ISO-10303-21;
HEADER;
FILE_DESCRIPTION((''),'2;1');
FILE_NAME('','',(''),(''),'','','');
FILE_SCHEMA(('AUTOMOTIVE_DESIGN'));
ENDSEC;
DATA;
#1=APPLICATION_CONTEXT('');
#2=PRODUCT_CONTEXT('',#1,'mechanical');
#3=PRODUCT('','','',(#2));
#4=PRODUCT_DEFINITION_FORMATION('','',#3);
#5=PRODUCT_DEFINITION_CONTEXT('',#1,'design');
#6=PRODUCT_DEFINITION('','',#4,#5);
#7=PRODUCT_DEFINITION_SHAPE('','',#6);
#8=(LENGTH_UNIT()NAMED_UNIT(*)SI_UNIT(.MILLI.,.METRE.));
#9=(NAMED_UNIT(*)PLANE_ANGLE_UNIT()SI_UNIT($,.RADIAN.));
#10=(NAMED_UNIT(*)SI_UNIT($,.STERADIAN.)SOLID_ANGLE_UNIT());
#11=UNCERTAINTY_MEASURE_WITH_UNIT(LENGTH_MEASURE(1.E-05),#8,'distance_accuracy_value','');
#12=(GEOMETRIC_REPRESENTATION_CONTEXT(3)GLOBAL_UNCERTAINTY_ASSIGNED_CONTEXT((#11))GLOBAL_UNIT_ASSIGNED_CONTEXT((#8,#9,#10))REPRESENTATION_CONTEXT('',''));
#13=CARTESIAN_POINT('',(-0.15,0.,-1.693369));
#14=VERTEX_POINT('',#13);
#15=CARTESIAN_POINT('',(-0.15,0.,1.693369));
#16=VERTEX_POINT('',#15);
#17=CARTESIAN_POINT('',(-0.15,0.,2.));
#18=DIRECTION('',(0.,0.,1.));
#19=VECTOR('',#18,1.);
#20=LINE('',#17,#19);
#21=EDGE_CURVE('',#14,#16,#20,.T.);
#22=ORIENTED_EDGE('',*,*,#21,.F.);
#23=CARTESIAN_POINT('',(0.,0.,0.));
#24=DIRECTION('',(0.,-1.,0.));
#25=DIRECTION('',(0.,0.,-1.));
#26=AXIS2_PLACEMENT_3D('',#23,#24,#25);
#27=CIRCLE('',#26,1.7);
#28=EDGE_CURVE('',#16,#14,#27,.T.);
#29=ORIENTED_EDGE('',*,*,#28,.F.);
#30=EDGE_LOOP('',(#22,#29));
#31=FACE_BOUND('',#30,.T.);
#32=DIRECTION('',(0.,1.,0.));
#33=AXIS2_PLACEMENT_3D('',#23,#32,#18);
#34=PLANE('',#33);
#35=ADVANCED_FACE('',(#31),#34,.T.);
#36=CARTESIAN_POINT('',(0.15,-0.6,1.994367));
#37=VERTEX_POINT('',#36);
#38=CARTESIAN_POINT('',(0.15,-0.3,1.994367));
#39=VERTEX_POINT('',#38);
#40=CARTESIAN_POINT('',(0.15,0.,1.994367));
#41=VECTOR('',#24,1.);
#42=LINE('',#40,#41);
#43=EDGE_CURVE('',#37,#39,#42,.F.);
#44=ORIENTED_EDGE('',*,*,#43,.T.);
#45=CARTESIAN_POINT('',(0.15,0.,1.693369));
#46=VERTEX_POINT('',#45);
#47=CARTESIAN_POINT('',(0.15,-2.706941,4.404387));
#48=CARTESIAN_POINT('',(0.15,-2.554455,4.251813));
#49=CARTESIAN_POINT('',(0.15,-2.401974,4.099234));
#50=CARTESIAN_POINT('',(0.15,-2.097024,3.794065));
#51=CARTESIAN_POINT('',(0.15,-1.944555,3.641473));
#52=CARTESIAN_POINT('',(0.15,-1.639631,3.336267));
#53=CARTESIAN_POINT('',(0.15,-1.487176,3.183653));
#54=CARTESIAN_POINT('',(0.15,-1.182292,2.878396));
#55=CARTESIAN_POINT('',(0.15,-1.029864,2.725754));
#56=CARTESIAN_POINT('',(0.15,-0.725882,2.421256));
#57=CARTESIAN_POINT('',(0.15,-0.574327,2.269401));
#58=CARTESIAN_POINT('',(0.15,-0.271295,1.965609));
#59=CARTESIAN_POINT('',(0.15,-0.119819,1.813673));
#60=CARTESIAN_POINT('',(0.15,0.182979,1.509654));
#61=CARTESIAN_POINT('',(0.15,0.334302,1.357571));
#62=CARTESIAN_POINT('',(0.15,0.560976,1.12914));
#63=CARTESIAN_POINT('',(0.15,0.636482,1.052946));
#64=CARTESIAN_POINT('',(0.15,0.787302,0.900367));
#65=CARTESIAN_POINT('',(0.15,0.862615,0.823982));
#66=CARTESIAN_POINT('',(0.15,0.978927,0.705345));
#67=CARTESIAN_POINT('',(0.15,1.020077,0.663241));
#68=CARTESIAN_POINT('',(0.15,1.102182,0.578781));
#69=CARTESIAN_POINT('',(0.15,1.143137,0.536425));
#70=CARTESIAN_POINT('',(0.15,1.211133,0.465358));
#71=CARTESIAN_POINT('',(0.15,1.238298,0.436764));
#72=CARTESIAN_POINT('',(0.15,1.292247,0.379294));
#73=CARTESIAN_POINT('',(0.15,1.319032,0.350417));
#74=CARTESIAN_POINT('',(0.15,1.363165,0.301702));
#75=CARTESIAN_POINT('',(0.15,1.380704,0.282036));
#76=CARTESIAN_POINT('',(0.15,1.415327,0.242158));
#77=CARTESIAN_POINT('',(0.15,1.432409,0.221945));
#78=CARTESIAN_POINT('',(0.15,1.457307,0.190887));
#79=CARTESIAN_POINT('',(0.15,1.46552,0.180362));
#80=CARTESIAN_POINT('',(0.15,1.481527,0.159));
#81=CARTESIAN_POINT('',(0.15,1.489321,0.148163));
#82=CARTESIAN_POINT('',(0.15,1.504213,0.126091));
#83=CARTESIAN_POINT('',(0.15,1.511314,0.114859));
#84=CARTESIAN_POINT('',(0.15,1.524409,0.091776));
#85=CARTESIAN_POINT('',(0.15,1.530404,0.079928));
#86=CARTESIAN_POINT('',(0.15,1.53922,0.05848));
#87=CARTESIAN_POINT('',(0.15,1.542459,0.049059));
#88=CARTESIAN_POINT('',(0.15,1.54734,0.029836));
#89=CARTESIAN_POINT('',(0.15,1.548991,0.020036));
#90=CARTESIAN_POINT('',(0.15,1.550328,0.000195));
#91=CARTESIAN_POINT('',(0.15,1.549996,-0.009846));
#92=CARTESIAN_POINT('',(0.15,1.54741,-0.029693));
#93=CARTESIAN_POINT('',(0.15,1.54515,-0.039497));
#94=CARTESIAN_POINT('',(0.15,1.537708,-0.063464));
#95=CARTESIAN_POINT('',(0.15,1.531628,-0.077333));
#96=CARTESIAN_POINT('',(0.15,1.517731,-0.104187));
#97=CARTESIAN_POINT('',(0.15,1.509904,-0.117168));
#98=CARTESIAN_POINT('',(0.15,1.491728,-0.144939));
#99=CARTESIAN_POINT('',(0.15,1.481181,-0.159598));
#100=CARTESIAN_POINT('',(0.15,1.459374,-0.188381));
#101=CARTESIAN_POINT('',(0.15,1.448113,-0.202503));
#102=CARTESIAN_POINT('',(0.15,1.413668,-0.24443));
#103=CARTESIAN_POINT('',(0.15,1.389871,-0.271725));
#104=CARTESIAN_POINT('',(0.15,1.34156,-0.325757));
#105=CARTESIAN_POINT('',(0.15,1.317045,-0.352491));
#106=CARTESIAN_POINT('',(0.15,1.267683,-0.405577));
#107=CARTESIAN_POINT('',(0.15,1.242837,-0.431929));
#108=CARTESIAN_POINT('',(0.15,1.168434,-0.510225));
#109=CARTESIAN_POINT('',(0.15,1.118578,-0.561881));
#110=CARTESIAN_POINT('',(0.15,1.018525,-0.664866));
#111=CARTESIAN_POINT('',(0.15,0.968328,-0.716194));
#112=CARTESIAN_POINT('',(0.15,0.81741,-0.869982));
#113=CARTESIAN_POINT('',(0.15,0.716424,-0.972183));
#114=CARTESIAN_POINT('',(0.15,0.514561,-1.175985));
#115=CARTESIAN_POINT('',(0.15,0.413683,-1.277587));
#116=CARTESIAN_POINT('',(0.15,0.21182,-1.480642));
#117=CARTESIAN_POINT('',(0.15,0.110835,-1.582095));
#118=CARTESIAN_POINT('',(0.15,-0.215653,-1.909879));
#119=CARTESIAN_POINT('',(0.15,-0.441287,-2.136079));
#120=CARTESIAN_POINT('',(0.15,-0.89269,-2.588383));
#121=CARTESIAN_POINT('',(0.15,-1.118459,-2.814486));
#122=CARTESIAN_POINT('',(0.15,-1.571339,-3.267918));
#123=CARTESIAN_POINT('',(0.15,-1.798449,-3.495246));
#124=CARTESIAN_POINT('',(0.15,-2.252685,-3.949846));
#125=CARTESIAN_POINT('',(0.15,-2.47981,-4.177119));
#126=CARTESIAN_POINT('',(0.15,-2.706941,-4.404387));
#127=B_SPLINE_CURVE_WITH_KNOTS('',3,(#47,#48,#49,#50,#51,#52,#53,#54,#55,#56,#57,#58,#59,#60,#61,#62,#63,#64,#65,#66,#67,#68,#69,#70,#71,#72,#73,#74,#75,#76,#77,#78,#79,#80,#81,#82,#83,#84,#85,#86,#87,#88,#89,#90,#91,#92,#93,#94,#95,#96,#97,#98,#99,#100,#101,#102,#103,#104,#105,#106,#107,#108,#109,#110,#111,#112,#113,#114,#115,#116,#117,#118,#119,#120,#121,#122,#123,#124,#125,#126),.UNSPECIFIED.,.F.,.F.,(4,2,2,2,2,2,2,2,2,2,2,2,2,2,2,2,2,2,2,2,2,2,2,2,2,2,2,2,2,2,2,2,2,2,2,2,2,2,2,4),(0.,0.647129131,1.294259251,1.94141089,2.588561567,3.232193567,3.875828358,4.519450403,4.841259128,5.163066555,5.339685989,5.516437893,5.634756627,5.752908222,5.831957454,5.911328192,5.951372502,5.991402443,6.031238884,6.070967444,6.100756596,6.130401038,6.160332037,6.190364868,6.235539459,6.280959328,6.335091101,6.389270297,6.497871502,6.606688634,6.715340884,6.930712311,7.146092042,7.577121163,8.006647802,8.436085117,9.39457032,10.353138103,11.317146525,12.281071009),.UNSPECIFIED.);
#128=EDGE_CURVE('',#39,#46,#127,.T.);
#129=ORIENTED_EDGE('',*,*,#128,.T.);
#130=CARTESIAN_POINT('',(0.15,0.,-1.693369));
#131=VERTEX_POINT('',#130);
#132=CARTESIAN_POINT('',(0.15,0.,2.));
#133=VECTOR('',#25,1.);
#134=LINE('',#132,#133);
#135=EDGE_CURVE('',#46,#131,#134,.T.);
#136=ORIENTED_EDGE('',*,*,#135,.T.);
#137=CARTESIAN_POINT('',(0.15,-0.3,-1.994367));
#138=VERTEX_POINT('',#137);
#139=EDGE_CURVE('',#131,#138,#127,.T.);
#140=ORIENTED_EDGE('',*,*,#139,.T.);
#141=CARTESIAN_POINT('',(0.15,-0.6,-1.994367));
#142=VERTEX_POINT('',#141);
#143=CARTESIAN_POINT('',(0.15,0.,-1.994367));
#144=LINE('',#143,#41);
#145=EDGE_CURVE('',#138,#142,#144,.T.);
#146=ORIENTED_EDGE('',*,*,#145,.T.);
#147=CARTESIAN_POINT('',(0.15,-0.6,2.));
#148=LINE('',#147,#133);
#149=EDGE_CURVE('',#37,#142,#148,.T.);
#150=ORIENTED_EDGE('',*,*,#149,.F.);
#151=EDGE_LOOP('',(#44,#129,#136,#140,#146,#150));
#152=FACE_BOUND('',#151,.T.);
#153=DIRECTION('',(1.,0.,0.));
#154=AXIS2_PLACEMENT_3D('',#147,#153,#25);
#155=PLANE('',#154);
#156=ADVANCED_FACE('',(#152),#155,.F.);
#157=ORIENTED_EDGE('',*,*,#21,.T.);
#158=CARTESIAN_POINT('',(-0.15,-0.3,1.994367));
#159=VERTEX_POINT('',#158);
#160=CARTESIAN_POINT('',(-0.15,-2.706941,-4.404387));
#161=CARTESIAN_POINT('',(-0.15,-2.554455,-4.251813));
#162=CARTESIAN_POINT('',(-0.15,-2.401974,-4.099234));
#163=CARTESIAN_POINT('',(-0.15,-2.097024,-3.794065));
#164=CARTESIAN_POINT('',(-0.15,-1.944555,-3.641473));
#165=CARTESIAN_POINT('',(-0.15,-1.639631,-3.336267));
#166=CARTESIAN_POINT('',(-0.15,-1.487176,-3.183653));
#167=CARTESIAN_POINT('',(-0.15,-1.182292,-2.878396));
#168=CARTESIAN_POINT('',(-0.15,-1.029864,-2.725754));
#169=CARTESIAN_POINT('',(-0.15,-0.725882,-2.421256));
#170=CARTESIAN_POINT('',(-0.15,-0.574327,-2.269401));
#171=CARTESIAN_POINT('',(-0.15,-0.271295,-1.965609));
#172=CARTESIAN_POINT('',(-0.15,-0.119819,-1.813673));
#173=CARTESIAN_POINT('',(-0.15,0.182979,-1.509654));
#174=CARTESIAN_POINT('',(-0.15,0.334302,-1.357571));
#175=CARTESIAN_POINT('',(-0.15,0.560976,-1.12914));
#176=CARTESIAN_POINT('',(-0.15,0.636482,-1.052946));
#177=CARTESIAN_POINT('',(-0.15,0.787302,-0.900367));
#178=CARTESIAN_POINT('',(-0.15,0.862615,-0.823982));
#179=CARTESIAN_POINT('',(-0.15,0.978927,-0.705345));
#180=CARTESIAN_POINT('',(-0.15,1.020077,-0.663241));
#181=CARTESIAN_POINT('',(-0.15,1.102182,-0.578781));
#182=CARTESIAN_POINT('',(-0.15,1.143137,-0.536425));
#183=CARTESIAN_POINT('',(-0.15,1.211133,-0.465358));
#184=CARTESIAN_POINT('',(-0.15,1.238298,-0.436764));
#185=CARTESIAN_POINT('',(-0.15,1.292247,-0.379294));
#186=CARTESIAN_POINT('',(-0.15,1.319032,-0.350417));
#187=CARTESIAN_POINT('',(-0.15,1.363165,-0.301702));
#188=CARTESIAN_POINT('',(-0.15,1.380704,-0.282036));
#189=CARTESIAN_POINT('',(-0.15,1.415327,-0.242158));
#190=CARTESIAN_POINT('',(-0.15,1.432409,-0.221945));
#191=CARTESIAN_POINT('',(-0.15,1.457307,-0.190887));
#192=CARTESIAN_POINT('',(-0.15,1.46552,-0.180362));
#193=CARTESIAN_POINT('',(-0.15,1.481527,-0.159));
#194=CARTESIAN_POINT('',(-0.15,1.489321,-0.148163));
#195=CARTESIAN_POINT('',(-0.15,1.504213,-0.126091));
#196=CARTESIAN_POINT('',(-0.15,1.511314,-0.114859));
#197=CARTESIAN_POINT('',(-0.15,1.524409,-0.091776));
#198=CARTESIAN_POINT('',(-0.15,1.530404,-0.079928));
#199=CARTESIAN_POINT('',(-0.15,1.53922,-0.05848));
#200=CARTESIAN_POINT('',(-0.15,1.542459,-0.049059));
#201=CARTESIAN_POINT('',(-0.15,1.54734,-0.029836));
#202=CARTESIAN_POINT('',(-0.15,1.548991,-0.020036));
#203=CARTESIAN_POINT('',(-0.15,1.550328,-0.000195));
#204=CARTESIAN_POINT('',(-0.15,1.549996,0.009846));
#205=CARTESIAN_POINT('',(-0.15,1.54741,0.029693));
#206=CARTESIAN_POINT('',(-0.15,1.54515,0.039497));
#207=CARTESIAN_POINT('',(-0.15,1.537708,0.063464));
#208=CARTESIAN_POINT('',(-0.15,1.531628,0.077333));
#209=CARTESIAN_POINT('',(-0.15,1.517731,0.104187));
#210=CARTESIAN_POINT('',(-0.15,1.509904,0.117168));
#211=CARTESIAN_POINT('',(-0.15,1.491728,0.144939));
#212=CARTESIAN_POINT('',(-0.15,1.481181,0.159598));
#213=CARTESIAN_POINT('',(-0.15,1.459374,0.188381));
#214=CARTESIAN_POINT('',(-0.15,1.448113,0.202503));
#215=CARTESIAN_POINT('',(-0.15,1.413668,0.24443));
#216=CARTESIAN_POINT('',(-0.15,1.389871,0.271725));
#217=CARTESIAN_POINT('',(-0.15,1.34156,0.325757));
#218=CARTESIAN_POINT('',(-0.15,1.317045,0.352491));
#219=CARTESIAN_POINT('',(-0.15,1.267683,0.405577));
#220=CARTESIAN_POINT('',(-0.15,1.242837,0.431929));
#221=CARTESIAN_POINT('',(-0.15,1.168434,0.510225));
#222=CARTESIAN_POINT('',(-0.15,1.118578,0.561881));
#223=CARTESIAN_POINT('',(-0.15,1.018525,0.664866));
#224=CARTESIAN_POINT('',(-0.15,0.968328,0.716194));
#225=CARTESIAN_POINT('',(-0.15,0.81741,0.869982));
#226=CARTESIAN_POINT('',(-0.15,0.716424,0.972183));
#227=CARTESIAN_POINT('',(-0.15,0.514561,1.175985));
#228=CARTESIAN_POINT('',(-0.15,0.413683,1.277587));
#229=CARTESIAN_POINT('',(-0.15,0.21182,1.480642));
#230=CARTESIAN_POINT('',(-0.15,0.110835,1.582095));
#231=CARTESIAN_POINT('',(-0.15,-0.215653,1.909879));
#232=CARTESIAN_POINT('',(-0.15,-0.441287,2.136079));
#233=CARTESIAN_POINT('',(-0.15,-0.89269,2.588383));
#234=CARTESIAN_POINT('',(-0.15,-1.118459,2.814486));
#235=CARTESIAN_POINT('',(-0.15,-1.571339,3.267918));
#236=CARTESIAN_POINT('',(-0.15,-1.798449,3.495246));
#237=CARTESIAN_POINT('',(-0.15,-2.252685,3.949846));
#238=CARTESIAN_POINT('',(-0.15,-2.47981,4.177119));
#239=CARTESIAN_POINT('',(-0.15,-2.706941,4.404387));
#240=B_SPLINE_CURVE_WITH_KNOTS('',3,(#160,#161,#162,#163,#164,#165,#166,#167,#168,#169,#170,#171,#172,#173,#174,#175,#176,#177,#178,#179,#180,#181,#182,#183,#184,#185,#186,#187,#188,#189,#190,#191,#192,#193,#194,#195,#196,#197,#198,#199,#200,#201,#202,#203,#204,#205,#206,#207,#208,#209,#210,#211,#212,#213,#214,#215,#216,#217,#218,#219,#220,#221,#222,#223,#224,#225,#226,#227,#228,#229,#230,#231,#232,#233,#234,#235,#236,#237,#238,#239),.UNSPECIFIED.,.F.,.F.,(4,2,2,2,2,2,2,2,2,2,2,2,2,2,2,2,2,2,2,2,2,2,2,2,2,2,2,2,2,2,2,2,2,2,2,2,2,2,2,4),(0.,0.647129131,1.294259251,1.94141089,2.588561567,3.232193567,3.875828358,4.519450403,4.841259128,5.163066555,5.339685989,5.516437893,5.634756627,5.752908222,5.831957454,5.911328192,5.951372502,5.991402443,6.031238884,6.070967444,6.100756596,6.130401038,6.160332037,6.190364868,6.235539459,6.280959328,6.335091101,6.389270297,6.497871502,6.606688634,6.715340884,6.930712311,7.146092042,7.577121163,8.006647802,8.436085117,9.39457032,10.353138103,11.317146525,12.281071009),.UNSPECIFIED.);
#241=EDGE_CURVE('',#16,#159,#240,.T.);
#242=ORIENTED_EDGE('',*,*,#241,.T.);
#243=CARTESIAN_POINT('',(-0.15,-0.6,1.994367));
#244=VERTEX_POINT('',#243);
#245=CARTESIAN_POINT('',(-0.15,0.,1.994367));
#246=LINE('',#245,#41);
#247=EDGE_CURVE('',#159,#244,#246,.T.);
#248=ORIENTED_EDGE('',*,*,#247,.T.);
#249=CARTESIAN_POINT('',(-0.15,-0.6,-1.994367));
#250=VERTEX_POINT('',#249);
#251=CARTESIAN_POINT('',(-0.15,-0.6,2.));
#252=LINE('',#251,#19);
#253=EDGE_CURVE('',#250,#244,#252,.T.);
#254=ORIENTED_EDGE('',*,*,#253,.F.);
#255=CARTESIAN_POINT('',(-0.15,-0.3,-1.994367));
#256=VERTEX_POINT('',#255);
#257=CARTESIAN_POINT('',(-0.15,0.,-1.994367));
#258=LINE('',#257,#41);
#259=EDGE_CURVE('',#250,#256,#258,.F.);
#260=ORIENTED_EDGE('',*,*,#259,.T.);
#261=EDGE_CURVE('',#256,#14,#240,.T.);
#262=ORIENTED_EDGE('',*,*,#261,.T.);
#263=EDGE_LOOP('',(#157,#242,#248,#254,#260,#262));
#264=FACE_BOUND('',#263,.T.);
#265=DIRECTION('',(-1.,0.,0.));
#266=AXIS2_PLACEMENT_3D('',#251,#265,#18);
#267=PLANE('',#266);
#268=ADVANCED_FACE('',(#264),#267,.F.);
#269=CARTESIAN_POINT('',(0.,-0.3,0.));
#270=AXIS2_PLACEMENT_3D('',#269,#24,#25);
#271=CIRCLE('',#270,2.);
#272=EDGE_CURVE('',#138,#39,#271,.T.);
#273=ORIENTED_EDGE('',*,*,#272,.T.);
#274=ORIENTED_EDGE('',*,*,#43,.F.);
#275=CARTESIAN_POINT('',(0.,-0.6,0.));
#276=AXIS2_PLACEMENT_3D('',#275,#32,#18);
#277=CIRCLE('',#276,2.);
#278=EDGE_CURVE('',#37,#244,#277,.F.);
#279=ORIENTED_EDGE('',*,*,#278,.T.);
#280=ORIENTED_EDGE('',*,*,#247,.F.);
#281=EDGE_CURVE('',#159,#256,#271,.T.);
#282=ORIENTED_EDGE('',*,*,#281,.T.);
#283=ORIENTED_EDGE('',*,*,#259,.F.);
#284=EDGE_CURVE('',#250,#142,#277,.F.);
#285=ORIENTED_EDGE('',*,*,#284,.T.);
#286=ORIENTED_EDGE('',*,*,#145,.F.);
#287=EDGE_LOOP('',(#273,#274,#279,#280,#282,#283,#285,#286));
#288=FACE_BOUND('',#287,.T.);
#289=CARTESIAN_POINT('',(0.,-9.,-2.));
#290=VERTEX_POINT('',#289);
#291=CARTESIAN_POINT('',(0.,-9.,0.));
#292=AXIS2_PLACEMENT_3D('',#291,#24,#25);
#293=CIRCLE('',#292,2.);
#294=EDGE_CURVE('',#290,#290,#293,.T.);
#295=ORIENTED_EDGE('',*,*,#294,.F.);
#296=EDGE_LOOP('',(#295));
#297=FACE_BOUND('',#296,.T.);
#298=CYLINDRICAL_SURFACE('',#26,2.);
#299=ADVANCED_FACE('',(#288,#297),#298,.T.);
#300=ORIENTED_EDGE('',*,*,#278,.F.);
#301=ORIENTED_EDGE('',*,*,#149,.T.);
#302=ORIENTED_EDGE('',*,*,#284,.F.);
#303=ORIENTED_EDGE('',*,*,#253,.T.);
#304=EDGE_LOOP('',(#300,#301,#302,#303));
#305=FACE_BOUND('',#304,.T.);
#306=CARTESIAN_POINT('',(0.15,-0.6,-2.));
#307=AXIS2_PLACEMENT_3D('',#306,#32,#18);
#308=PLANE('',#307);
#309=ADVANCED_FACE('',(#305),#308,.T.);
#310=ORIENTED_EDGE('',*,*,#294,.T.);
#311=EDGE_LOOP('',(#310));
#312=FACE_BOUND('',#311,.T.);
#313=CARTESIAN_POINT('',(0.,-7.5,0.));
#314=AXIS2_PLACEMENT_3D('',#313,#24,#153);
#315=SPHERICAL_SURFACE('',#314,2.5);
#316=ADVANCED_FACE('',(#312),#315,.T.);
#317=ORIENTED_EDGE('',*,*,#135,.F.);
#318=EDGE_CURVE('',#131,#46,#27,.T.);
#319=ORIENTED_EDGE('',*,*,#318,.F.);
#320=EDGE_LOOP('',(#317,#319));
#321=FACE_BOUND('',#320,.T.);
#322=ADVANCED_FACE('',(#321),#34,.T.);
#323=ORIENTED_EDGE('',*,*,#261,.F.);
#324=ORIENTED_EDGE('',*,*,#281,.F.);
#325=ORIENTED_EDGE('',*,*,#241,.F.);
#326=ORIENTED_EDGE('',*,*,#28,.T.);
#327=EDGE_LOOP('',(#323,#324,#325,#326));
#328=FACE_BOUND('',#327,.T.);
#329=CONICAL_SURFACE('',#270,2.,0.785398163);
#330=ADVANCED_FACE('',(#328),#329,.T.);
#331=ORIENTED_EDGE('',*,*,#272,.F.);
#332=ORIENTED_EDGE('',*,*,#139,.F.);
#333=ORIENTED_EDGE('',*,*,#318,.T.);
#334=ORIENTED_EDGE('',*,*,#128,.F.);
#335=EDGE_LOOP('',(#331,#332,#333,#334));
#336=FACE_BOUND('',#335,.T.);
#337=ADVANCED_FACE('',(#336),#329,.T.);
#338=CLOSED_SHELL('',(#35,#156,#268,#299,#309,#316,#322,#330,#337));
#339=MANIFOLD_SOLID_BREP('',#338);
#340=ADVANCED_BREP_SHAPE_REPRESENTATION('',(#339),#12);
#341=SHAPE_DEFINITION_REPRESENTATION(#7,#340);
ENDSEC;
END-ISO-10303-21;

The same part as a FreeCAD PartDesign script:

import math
import FreeCAD as App
import Part
import Sketcher
from FreeCAD import Vector
Q = App.Units.Quantity

doc = App.newDocument("Part")
body = doc.addObject("PartDesign::Body", "Body")

# Sketch on XY plane
sketch1 = doc.addObject("Sketcher::SketchObject", "Sketch")
body.addObject(sketch1)
sketch1.AttachmentSupport = (doc.XY_Plane, [""])
sketch1.MapMode = "FlatFace"
sketch1.addGeometry(Part.LineSegment(Vector(1.7, 0, 0), Vector(0, 0, 0)), False)
sketch1.addGeometry(Part.LineSegment(Vector(0, 0, 0), Vector(0, -10, 0)), False)
sketch1.addGeometry(Part.ArcOfCircle(Part.Circle(Vector(0, -7.5, 0), Vector(0, 0, 1), 2.5), math.radians(-90), math.radians(-37)), False)
sketch1.addGeometry(Part.LineSegment(Vector(2, -9, 0), Vector(2, -0.3, 0)), False)
sketch1.addGeometry(Part.LineSegment(Vector(2, -0.3, 0), Vector(1.7, 0, 0)), False)
sketch1.addConstraint(Sketcher.Constraint("Coincident", 0, 2, 1, 1))
sketch1.addConstraint(Sketcher.Constraint("Coincident", 1, 2, 2, 1))
sketch1.addConstraint(Sketcher.Constraint("Coincident", 2, 2, 3, 1))
sketch1.addConstraint(Sketcher.Constraint("Coincident", 3, 2, 4, 1))
sketch1.addConstraint(Sketcher.Constraint("Coincident", 4, 2, 0, 1))
sketch1.addConstraint(Sketcher.Constraint("Horizontal", 0))
sketch1.addConstraint(Sketcher.Constraint("Vertical", 1))
sketch1.addConstraint(Sketcher.Constraint("Vertical", 3))
sketch1.addConstraint(Sketcher.Constraint("Coincident", 0, 2, -1, 1))
sketch1.addConstraint(Sketcher.Constraint("PointOnObject", 2, 3, -2))
sketch1.addConstraint(Sketcher.Constraint("Radius", 2, Q("2.5 mm")))
sketch1.addConstraint(Sketcher.Constraint("DistanceY", 1, 2, 1, 1, Q("10 mm")))
sketch1.addConstraint(Sketcher.Constraint("Angle", 4, Q("135 deg")))
sketch1.addConstraint(Sketcher.Constraint("DistanceX", 0, 2, 0, 1, Q("1.7 mm")))
sketch1.addConstraint(Sketcher.Constraint("DistanceY", 3, 1, 3, 2, Q("8.7 mm")))
revolution = doc.addObject("PartDesign::Revolution", "Revolution")
body.addObject(revolution)
revolution.Profile = sketch1
revolution.ReferenceAxis = (sketch1, ["V_Axis"])
revolution.Angle = 360

# Sketch on XZ plane
sketch2 = doc.addObject("Sketcher::SketchObject", "Sketch001")
body.addObject(sketch2)
sketch2.AttachmentSupport = (doc.XZ_Plane, [""])
sketch2.MapMode = "FlatFace"
sketch2.addGeometry(Part.LineSegment(Vector(-0.15, -2, 0), Vector(-0.15, 2, 0)), False)
sketch2.addGeometry(Part.LineSegment(Vector(-0.15, 2, 0), Vector(0.15, 2, 0)), False)
sketch2.addGeometry(Part.LineSegment(Vector(0.15, 2, 0), Vector(0.15, -2, 0)), False)
sketch2.addGeometry(Part.LineSegment(Vector(0.15, -2, 0), Vector(-0.15, -2, 0)), False)
sketch2.addConstraint(Sketcher.Constraint("Coincident", 0, 2, 1, 1))
sketch2.addConstraint(Sketcher.Constraint("Coincident", 1, 2, 2, 1))
sketch2.addConstraint(Sketcher.Constraint("Coincident", 2, 2, 3, 1))
sketch2.addConstraint(Sketcher.Constraint("Coincident", 3, 2, 0, 1))
sketch2.addConstraint(Sketcher.Constraint("Vertical", 0))
sketch2.addConstraint(Sketcher.Constraint("Horizontal", 1))
sketch2.addConstraint(Sketcher.Constraint("Vertical", 2))
sketch2.addConstraint(Sketcher.Constraint("Horizontal", 3))
sketch2.addConstraint(Sketcher.Constraint("Symmetric", 0, 2, 2, 2, -1, 1))
sketch2.addConstraint(Sketcher.Constraint("DistanceY", 0, 1, 0, 2, Q("4 mm")))
sketch2.addConstraint(Sketcher.Constraint("DistanceX", 1, 1, 1, 2, Q("0.3 mm")))
pocket1 = doc.addObject("PartDesign::Pocket", "Pocket")
body.addObject(pocket1)
pocket1.Profile = sketch2
pocket1.Length = 0.6
pocket1.Reversed = True

doc.recompute()
